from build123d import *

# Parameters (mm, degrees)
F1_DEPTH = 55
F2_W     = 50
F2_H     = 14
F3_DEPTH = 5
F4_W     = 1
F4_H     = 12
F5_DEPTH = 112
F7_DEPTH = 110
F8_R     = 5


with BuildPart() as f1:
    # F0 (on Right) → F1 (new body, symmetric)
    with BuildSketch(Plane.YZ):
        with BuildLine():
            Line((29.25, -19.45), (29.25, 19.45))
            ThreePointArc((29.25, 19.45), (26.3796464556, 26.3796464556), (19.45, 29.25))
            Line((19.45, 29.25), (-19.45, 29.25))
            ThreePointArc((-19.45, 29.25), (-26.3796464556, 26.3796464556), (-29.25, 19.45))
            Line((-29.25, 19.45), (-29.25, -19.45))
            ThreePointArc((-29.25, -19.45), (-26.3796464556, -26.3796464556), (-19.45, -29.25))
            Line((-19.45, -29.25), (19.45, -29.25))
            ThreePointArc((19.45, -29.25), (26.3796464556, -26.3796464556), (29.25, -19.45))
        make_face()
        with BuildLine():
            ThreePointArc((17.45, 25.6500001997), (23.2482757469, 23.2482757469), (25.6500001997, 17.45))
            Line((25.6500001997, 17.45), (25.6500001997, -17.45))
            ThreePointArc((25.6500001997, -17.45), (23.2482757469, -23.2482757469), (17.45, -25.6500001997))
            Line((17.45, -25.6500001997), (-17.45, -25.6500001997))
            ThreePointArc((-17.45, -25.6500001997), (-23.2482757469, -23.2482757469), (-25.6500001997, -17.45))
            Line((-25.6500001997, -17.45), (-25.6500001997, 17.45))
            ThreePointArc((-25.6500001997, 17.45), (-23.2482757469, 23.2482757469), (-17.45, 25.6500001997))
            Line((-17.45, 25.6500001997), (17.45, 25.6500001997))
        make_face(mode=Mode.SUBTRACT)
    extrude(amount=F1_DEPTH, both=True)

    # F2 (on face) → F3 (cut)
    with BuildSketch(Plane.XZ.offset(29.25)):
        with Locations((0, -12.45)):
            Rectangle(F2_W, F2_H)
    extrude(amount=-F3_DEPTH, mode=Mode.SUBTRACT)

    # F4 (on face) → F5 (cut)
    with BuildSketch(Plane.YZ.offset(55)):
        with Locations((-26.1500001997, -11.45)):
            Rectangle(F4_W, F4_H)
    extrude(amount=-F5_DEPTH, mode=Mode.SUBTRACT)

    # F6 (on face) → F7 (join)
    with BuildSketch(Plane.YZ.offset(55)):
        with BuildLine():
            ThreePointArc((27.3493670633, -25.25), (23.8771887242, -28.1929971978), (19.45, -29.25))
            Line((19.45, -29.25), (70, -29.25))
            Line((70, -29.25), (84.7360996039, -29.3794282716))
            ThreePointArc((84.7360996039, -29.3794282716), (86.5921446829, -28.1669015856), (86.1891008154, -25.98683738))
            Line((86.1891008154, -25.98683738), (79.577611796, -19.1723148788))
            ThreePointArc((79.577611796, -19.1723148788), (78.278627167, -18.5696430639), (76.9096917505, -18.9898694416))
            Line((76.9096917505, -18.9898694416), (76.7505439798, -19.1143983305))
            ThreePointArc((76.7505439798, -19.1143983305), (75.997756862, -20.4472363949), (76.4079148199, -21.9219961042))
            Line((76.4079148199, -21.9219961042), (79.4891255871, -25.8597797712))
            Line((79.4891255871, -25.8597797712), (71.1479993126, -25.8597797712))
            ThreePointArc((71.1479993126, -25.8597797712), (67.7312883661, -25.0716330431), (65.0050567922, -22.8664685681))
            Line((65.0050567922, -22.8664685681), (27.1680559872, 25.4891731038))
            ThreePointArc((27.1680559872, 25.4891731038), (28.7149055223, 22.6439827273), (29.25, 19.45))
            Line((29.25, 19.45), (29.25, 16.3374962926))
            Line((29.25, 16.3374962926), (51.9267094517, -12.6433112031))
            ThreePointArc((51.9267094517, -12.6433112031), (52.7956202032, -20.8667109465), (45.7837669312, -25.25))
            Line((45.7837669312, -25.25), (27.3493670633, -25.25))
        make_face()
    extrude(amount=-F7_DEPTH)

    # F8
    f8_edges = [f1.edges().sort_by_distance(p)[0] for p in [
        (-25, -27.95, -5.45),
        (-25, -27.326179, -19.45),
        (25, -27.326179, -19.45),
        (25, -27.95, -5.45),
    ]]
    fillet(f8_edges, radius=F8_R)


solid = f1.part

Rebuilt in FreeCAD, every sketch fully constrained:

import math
import FreeCAD as App
import Part
import Sketcher

V = App.Vector


def edges_at(feature, points):
    """Names of the edges that pass closest to the given points."""
    edges = feature.Shape.Edges
    near = lambda p: min(range(len(edges)), key=lambda i: edges[i].distToShape(Part.Vertex(*p))[0])
    return sorted({f"Edge{near(p) + 1}" for p in points})


def add_polygon(sketch, points):
    """Adds a closed chain of lines whose ends are joined by coincident constraints."""
    first, n = sketch.GeometryCount, len(points)
    for a, b in zip(points, points[1:] + points[:1]):
        sketch.addGeometry(Part.LineSegment(App.Vector(*a, 0), App.Vector(*b, 0)), False)
    for i in range(n):
        sketch.addConstraint(Sketcher.Constraint("Coincident", first + i, 2, first + (i + 1) % n, 1))

doc = App.newDocument("Part")
body = doc.addObject("PartDesign::Body", "Body")

# Sketch on YZ plane
sketch1 = body.newObject("Sketcher::SketchObject", "Sketch")
sketch1.AttachmentSupport = (doc.getObject("YZ_Plane"), [""])
sketch1.MapMode = "FlatFace"
sketch1.addGeometry([
    Part.LineSegment(V(29.25, -19.45, 0), V(29.25, 19.45, 0)),  # 0
    Part.ArcOfCircle(Part.Circle(V(19.45, 19.45, 0), V(0, 0, 1), 9.8), math.radians(0), math.radians(90)),  # 1
    Part.LineSegment(V(19.45, 29.25, 0), V(-19.45, 29.25, 0)),  # 2
    Part.ArcOfCircle(Part.Circle(V(-19.45, 19.45, 0), V(0, 0, 1), 9.8), math.radians(90), math.radians(180)),  # 3
    Part.LineSegment(V(-29.25, 19.45, 0), V(-29.25, -19.45, 0)),  # 4
    Part.ArcOfCircle(Part.Circle(V(-19.45, -19.45, 0), V(0, 0, 1), 9.8), math.radians(180), math.radians(270)),  # 5
    Part.LineSegment(V(-19.45, -29.25, 0), V(19.45, -29.25, 0)),  # 6
    Part.ArcOfCircle(Part.Circle(V(19.45, -19.45, 0), V(0, 0, 1), 9.8), math.radians(-90), math.radians(0)),  # 7
    Part.LineSegment(V(-17.45, 25.65, 0), V(17.45, 25.65, 0)),  # 8
    Part.ArcOfCircle(Part.Circle(V(17.45, 17.45, 0), V(0, 0, 1), 8.2), math.radians(0), math.radians(90)),  # 9
    Part.LineSegment(V(25.65, 17.45, 0), V(25.65, -17.45, 0)),  # 10
    Part.ArcOfCircle(Part.Circle(V(17.45, -17.45, 0), V(0, 0, 1), 8.2), math.radians(-90), math.radians(0)),  # 11
    Part.LineSegment(V(17.45, -25.65, 0), V(-17.45, -25.65, 0)),  # 12
    Part.ArcOfCircle(Part.Circle(V(-17.45, -17.45, 0), V(0, 0, 1), 8.2), math.radians(180), math.radians(270)),  # 13
    Part.LineSegment(V(-25.65, -17.45, 0), V(-25.65, 17.45, 0)),  # 14
    Part.ArcOfCircle(Part.Circle(V(-17.45, 17.45, 0), V(0, 0, 1), 8.2), math.radians(90), math.radians(180)),  # 15
], False)
sketch1.addConstraint([
    Sketcher.Constraint("Tangent", 0, 2, 1, 1),
    Sketcher.Constraint("Tangent", 1, 2, 2, 1),
    Sketcher.Constraint("Tangent", 2, 2, 3, 1),
    Sketcher.Constraint("Tangent", 3, 2, 4, 1),
    Sketcher.Constraint("Tangent", 4, 2, 5, 1),
    Sketcher.Constraint("Tangent", 5, 2, 6, 1),
    Sketcher.Constraint("Tangent", 6, 2, 7, 1),
    Sketcher.Constraint("Tangent", 7, 2, 0, 1),
    Sketcher.Constraint("Tangent", 8, 2, 9, 2),
    Sketcher.Constraint("Tangent", 9, 1, 10, 1),
    Sketcher.Constraint("Tangent", 10, 2, 11, 2),
    Sketcher.Constraint("Tangent", 11, 1, 12, 1),
    Sketcher.Constraint("Tangent", 12, 2, 13, 2),
    Sketcher.Constraint("Tangent", 13, 1, 14, 1),
    Sketcher.Constraint("Tangent", 14, 2, 15, 2),
    Sketcher.Constraint("Tangent", 15, 1, 8, 1),
    Sketcher.Constraint("Vertical", 0),
    Sketcher.Constraint("Horizontal", 2),
    Sketcher.Constraint("Vertical", 4),
    Sketcher.Constraint("Horizontal", 6),
    Sketcher.Constraint("Horizontal", 8),
    Sketcher.Constraint("Vertical", 10),
    Sketcher.Constraint("Horizontal", 12),
    Sketcher.Constraint("Vertical", 14),
    Sketcher.Constraint("Equal", 1, 3),
    Sketcher.Constraint("Equal", 3, 5),
    Sketcher.Constraint("Equal", 5, 7),
    Sketcher.Constraint("Equal", 9, 11),
    Sketcher.Constraint("Equal", 11, 13),
    Sketcher.Constraint("Equal", 13, 15),
    Sketcher.Constraint("Symmetric", 1, 3, 5, 3, -1, 1),
    Sketcher.Constraint("Symmetric", 9, 3, 13, 3, -1, 1),
    Sketcher.Constraint("Equal", 6, 0),
    Sketcher.Constraint("Equal", 12, 10),
    Sketcher.Constraint("Radius", 1, 9.8),
    Sketcher.Constraint("Radius", 9, 8.2),
    Sketcher.Constraint("DistanceX", 2, 2, 2, 1, 38.9),
    Sketcher.Constraint("DistanceX", 8, 1, 8, 2, 34.9),
])
pad1 = body.newObject("PartDesign::Pad", "Pad")
pad1.Profile = sketch1
pad1.Length = 110
pad1.Midplane = True

# Sketch on XZ plane
sketch2 = body.newObject("Sketcher::SketchObject", "Sketch001")
sketch2.AttachmentSupport = (doc.getObject("XZ_Plane"), [""])
sketch2.MapMode = "FlatFace"
sketch2.AttachmentOffset = App.Placement(V(0, 0, 29.25), App.Rotation())
add_polygon(sketch2, [(-25, -5.45), (-25, -19.45), (25, -19.45), (25, -5.45)])  # lines 0-3
sketch2.addConstraint([
    Sketcher.Constraint("Vertical", 0),
    Sketcher.Constraint("Horizontal", 1),
    Sketcher.Constraint("Vertical", 2),
    Sketcher.Constraint("Horizontal", 3),
    Sketcher.Constraint("DistanceX", 1, 1, 1, 2, 50.0),
    Sketcher.Constraint("DistanceY", 0, 2, 0, 1, 14.0),
    Sketcher.Constraint("DistanceX", 0, 2, -1, 1, 25.0),
    Sketcher.Constraint("DistanceY", 0, 2, -1, 1, 19.45),
])
pocket1 = body.newObject("PartDesign::Pocket", "Pocket")
pocket1.Profile = sketch2
pocket1.Length = 5

# Sketch on YZ plane
sketch3 = body.newObject("Sketcher::SketchObject", "Sketch002")
sketch3.AttachmentSupport = (doc.getObject("YZ_Plane"), [""])
sketch3.MapMode = "FlatFace"
sketch3.AttachmentOffset = App.Placement(V(0, 0, 55), App.Rotation())
add_polygon(sketch3, [(-26.65, -5.45), (-26.65, -17.45), (-25.65, -17.45), (-25.65, -5.45)])  # lines 0-3
sketch3.addConstraint([
    Sketcher.Constraint("Vertical", 0),
    Sketcher.Constraint("Horizontal", 1),
    Sketcher.Constraint("Vertical", 2),
    Sketcher.Constraint("Horizontal", 3),
    Sketcher.Constraint("DistanceX", 1, 1, 1, 2, 1.0),
    Sketcher.Constraint("DistanceY", 0, 2, 0, 1, 12.0),
    Sketcher.Constraint("DistanceX", 0, 2, -1, 1, 26.65),
    Sketcher.Constraint("DistanceY", 0, 2, -1, 1, 17.45),
])
pocket2 = body.newObject("PartDesign::Pocket", "Pocket001")
pocket2.Profile = sketch3
pocket2.Length = 112

# Sketch on YZ plane
sketch4 = body.newObject("Sketcher::SketchObject", "Sketch003")
sketch4.AttachmentSupport = (doc.getObject("YZ_Plane"), [""])
sketch4.MapMode = "FlatFace"
sketch4.AttachmentOffset = App.Placement(V(0, 0, 55), App.Rotation())
sketch4.addGeometry([
    Part.ArcOfCircle(Part.Circle(V(19.45, -19.45, 0), V(0, 0, 1), 9.8), math.radians(-90), math.radians(-36.287457)),  # 0
    Part.LineSegment(V(19.45, -29.25, 0), V(70, -29.25, 0)),  # 1
    Part.LineSegment(V(70, -29.25, 0), V(84.7361, -29.379428, 0)),  # 2
    Part.ArcOfCircle(Part.Circle(V(84.753665, -27.379505, 0), V(0, 0, 1), 2), math.radians(-90.50322), math.radians(44.133617)),  # 3
    Part.LineSegment(V(86.189101, -25.986837, 0), V(79.577612, -19.172315, 0)),  # 4
    Part.ArcOfCircle(Part.Circle(V(78.142176, -20.564983, 0), V(0, 0, 1), 2), math.radians(44.133616), math.radians(128.042233)),  # 5
    Part.LineSegment(V(76.909692, -18.989869, 0), V(76.750544, -19.114398, 0)),  # 6
    Part.ArcOfCircle(Part.Circle(V(77.983028, -20.689512, 0), V(0, 0, 1), 2), math.radians(128.042233), math.radians(218.042233)),  # 7
    Part.LineSegment(V(76.407915, -21.921996, 0), V(79.489126, -25.85978, 0)),  # 8
    Part.LineSegment(V(79.489126, -25.85978, 0), V(71.147999, -25.85978, 0)),  # 9
    Part.ArcOfCircle(Part.Circle(V(71.147999, -18.05978, 0), V(0, 0, 1), 7.8), math.radians(-141.957767), math.radians(-90)),  # 10
    Part.LineSegment(V(65.005057, -22.866469, 0), V(27.168056, 25.489173, 0)),  # 11
    Part.ArcOfCircle(Part.Circle(V(19.45, 19.45, 0), V(0, 0, 1), 9.8), math.radians(0), math.radians(38.042233)),  # 12
    Part.LineSegment(V(29.25, 19.45, 0), V(29.25, 16.337496, 0)),  # 13
    Part.LineSegment(V(29.25, 16.337496, 0), V(51.926709, -12.643311, 0)),  # 14
    Part.ArcOfCircle(Part.Circle(V(45.783767, -17.45, 0), V(0, 0, 1), 7.8), math.radians(-90), math.radians(38.042233)),  # 15
    Part.LineSegment(V(45.783767, -25.25, 0), V(27.349367, -25.25, 0)),  # 16
], False)
sketch4.addConstraint([
    Sketcher.Constraint("Tangent", 0, 1, 1, 1),
    Sketcher.Constraint("Coincident", 1, 2, 2, 1),
    Sketcher.Constraint("Tangent", 2, 2, 3, 1),
    Sketcher.Constraint("Tangent", 3, 2, 4, 1),
    Sketcher.Constraint("Tangent", 4, 2, 5, 1),
    Sketcher.Constraint("Tangent", 5, 2, 6, 1),
    Sketcher.Constraint("Tangent", 6, 2, 7, 1),
    Sketcher.Constraint("Tangent", 7, 2, 8, 1),
    Sketcher.Constraint("Coincident", 8, 2, 9, 1),
    Sketcher.Constraint("Tangent", 9, 2, 10, 2),
    Sketcher.Constraint("Tangent", 10, 1, 11, 1),
    Sketcher.Constraint("Tangent", 11, 2, 12, 2),
    Sketcher.Constraint("Tangent", 12, 1, 13, 1),
    Sketcher.Constraint("Coincident", 13, 2, 14, 1),
    Sketcher.Constraint("Tangent", 14, 2, 15, 2),
    Sketcher.Constraint("Tangent", 15, 1, 16, 1),
    Sketcher.Constraint("Coincident", 16, 2, 0, 2),
    Sketcher.Constraint("Horizontal", 1),
    Sketcher.Constraint("Horizontal", 9),
    Sketcher.Constraint("Vertical", 13),
    Sketcher.Constraint("Horizontal", 16),
    Sketcher.Constraint("Equal", 3, 5),
    Sketcher.Constraint("Equal", 5, 7),
    Sketcher.Constraint("Equal", 0, 12),
    Sketcher.Constraint("Equal", 10, 15),
    Sketcher.Constraint("Symmetric", 0, 3, 12, 3, -1),
    Sketcher.Constraint("Perpendicular", 6, 8),
    Sketcher.Constraint("Parallel", 8, 11),
    Sketcher.Constraint("Parallel", 11, 14),
    Sketcher.Constraint("Radius", 3, 2.0),
    Sketcher.Constraint("Radius", 0, 9.8),
    Sketcher.Constraint("Radius", 10, 7.8),
    Sketcher.Constraint("Distance", 8, 5.0),
    Sketcher.Constraint("DistanceX", -1, 1, 1, 2, 70.0),
    Sketcher.Constraint("DistanceY", 0, 3, 15, 3, 2.0),
    Sketcher.Constraint("DistanceX", 1, 1, 1, 2, 50.55),
    Sketcher.Constraint("DistanceY", 0, 3, 12, 3, 38.9),
    Sketcher.Constraint("DistanceX", 16, 2, 16, 1, 18.4344),
    Sketcher.Constraint("DistanceX", -1, 1, 10, 3, 71.147999),
    Sketcher.Constraint("DistanceX", 2, 2, 3, 2, 1.453001),
    Sketcher.Constraint("DistanceX", 11, 2, 10, 1, 37.837001),
    Sketcher.Constraint("DistanceX", -1, 1, 2, 2, 84.7361),
    Sketcher.Constraint("DistanceX", 15, 3, 3, 3, 38.969898),
    Sketcher.Constraint("Distance", 4, 9.494709),
])
pad2 = body.newObject("PartDesign::Pad", "Pad001")
pad2.Profile = sketch4
pad2.Length = 110
pad2.Reversed = True
doc.recompute()

fillet = body.newObject("PartDesign::Fillet", "Fillet")
fillet.Base = (pad2, edges_at(pad2, [
    (-25, -27.95, -5.45),
    (-25, -27.326, -19.45),
    (25, -27.326, -19.45),
    (25, -27.95, -5.45),
]))
fillet.Radius = 5

doc.recompute()
